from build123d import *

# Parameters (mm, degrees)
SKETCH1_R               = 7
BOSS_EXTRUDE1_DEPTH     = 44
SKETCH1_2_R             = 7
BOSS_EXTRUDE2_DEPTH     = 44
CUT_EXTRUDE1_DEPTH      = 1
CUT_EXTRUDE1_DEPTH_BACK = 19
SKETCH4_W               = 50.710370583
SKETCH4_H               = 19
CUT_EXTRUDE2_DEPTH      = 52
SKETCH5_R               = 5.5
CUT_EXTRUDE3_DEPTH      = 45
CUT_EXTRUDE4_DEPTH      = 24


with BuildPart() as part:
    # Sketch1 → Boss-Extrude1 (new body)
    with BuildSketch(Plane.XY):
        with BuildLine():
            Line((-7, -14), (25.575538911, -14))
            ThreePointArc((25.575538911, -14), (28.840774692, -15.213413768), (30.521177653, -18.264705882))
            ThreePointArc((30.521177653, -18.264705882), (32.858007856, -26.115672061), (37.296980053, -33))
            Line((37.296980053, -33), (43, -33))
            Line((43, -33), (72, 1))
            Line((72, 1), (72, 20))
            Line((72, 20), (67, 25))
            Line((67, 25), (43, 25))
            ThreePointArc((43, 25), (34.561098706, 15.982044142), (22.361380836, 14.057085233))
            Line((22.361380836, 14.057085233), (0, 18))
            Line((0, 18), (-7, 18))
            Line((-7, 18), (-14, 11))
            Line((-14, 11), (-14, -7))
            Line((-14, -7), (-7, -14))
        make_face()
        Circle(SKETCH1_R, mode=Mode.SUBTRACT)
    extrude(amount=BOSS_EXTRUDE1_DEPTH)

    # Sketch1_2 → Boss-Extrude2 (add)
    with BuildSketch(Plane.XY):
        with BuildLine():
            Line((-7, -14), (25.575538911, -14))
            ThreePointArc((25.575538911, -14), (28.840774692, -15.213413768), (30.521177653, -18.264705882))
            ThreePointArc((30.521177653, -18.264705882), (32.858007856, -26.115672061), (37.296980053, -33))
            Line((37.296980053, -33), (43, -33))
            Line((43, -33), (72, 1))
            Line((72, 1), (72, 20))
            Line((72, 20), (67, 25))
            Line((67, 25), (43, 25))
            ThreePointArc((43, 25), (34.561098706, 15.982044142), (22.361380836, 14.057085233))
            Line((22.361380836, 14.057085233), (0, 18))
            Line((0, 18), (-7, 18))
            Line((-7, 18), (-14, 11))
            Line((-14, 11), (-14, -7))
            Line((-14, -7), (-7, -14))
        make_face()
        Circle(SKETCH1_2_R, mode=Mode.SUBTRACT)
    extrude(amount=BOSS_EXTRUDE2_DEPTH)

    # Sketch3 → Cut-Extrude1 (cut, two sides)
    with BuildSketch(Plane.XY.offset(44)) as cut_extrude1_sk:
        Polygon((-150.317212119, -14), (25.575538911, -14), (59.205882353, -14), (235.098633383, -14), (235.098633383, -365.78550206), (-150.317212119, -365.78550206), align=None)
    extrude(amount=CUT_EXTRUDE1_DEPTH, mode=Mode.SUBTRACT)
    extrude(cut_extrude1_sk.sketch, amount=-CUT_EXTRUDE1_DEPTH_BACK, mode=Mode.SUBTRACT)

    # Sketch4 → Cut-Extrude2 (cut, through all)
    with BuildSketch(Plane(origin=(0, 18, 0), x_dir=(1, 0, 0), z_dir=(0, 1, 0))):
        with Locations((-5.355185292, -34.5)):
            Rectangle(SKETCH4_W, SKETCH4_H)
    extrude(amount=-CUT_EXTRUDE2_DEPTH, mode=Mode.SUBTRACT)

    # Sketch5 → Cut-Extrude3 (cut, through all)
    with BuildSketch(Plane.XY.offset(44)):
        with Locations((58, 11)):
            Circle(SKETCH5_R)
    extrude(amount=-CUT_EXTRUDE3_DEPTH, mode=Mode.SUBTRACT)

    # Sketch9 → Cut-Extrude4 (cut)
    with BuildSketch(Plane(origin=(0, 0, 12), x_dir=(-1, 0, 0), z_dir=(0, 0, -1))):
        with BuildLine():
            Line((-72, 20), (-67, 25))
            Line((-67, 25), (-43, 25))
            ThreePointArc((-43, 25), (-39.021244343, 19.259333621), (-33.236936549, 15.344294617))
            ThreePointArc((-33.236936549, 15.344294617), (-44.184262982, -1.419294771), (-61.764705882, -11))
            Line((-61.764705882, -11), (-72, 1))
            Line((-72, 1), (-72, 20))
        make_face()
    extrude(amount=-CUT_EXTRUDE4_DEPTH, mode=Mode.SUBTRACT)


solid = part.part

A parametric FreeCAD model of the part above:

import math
import FreeCAD as App
import Part
import Sketcher
from FreeCAD import Vector
Q = App.Units.Quantity


def add_polygon(sketch, points):
    """Adds a closed chain of lines whose ends are joined by coincident constraints."""
    first, n = sketch.GeometryCount, len(points)
    for a, b in zip(points, points[1:] + points[:1]):
        sketch.addGeometry(Part.LineSegment(App.Vector(*a, 0), App.Vector(*b, 0)), False)
    for i in range(n):
        sketch.addConstraint(Sketcher.Constraint("Coincident", first + i, 2, first + (i + 1) % n, 1))

doc = App.newDocument("Part")
body = doc.addObject("PartDesign::Body", "Body")

sketch1 = body.newObject("Sketcher::SketchObject", "Sketch")
sketch1.AttachmentSupport = (doc.getObject("XY_Plane"), [""])
sketch1.MapMode = "FlatFace"
sketch1.addGeometry(Part.LineSegment(Vector(-7, -14, 0), Vector(25.575539, -14, 0)), False)
sketch1.addGeometry(Part.ArcOfCircle(Part.Circle(Vector(25.575539, -19, 0), Vector(0, 0, 1), 5), math.radians(8.456519), math.radians(90)), False)
sketch1.addGeometry(Part.ArcOfCircle(Part.Circle(Vector(59.205882, -14, 0), Vector(0, 0, 1), 29), math.radians(-171.543481), math.radians(-139.067275)), False)
sketch1.addGeometry(Part.LineSegment(Vector(37.29698, -33, 0), Vector(43, -33, 0)), False)
sketch1.addGeometry(Part.LineSegment(Vector(43, -33, 0), Vector(72, 1, 0)), False)
sketch1.addGeometry(Part.LineSegment(Vector(72, 1, 0), Vector(72, 20, 0)), False)
sketch1.addGeometry(Part.LineSegment(Vector(72, 20, 0), Vector(67, 25, 0)), False)
sketch1.addGeometry(Part.LineSegment(Vector(67, 25, 0), Vector(43, 25, 0)), False)
sketch1.addGeometry(Part.ArcOfCircle(Part.Circle(Vector(25.660696, 32.768433, 0), Vector(0, 0, 1), 19), math.radians(-100), math.radians(-24.133548)), False)
sketch1.addGeometry(Part.LineSegment(Vector(22.361381, 14.057085, 0), Vector(0, 18, 0)), False)
sketch1.addGeometry(Part.LineSegment(Vector(0, 18, 0), Vector(-7, 18, 0)), False)
sketch1.addGeometry(Part.LineSegment(Vector(-7, 18, 0), Vector(-14, 11, 0)), False)
sketch1.addGeometry(Part.LineSegment(Vector(-14, 11, 0), Vector(-14, -7, 0)), False)
sketch1.addGeometry(Part.LineSegment(Vector(-14, -7, 0), Vector(-7, -14, 0)), False)
sketch1.addGeometry(Part.Circle(Vector(0, 0, 0), Vector(0, 0, 1), 7), False)
sketch1.addConstraint(Sketcher.Constraint("Tangent", 0, 2, 1, 2))
sketch1.addConstraint(Sketcher.Constraint("Tangent", 1, 1, 2, 1))
sketch1.addConstraint(Sketcher.Constraint("Coincident", 2, 2, 3, 1))
sketch1.addConstraint(Sketcher.Constraint("Coincident", 3, 2, 4, 1))
sketch1.addConstraint(Sketcher.Constraint("Coincident", 4, 2, 5, 1))
sketch1.addConstraint(Sketcher.Constraint("Coincident", 5, 2, 6, 1))
sketch1.addConstraint(Sketcher.Constraint("Coincident", 6, 2, 7, 1))
sketch1.addConstraint(Sketcher.Constraint("Coincident", 7, 2, 8, 2))
sketch1.addConstraint(Sketcher.Constraint("Tangent", 8, 1, 9, 1))
sketch1.addConstraint(Sketcher.Constraint("Coincident", 9, 2, 10, 1))
sketch1.addConstraint(Sketcher.Constraint("Coincident", 10, 2, 11, 1))
sketch1.addConstraint(Sketcher.Constraint("Coincident", 11, 2, 12, 1))
sketch1.addConstraint(Sketcher.Constraint("Coincident", 12, 2, 13, 1))
sketch1.addConstraint(Sketcher.Constraint("Coincident", 13, 2, 0, 1))
sketch1.addConstraint(Sketcher.Constraint("Horizontal", 0))
sketch1.addConstraint(Sketcher.Constraint("Horizontal", 3))
sketch1.addConstraint(Sketcher.Constraint("Vertical", 5))
sketch1.addConstraint(Sketcher.Constraint("Horizontal", 7))
sketch1.addConstraint(Sketcher.Constraint("Horizontal", 10))
sketch1.addConstraint(Sketcher.Constraint("Vertical", 12))
sketch1.addConstraint(Sketcher.Constraint("Coincident", 14, 3, -1, 1))
sketch1.addConstraint(Sketcher.Constraint("PointOnObject", 9, 2, -2))
sketch1.addConstraint(Sketcher.Constraint("Perpendicular", 6, 11))
sketch1.addConstraint(Sketcher.Constraint("Perpendicular", 11, 13))
sketch1.addConstraint(Sketcher.Constraint("Horizontal", 2, 3, 0, 2))
sketch1.addConstraint(Sketcher.Constraint("Vertical", 3, 2, 7, 2))
sketch1.addConstraint(Sketcher.Constraint("Vertical", 10, 2, 13, 2))
sketch1.addConstraint(Sketcher.Constraint("Equal", 11, 13))
sketch1.addConstraint(Sketcher.Constraint("Diameter", 14, 14.0))
sketch1.addConstraint(Sketcher.Constraint("Radius", 1, 5.0))
sketch1.addConstraint(Sketcher.Constraint("Radius", 2, 29.0))
sketch1.addConstraint(Sketcher.Constraint("Radius", 8, 19.0))
sketch1.addConstraint(Sketcher.Constraint("DistanceX", 7, 2, 7, 1, 24.0))
sketch1.addConstraint(Sketcher.Constraint("DistanceX", 10, 2, 10, 1, 7.0))
sketch1.addConstraint(Sketcher.Constraint("DistanceY", 5, 1, 5, 2, 19.0))
sketch1.addConstraint(Sketcher.Constraint("DistanceY", 12, 2, 12, 1, 18.0))
sketch1.addConstraint(Sketcher.Constraint("Angle", 9, Q("170 deg")))
sketch1.addConstraint(Sketcher.Constraint("DistanceY", 1, 3, -1, 1, 19.0))
sketch1.addConstraint(Sketcher.Constraint("DistanceY", 2, 2, -1, 1, 33.0))
sketch1.addConstraint(Sketcher.Constraint("DistanceX", -1, 1, 3, 2, 43.0))
sketch1.addConstraint(Sketcher.Constraint("DistanceX", -1, 1, 4, 2, 72.0))
sketch1.addConstraint(Sketcher.Constraint("DistanceY", -1, 1, 4, 2, 1.0))
sketch1.addConstraint(Sketcher.Constraint("DistanceY", -1, 1, 9, 2, 18.0))
sketch1.addConstraint(Sketcher.Constraint("DistanceX", 0, 1, 0, 2, 32.575539))
pad1 = body.newObject("PartDesign::Pad", "Pad")
pad1.Profile = sketch1
pad1.Length = 44

sketch2 = body.newObject("Sketcher::SketchObject", "Sketch001")
sketch2.AttachmentSupport = (doc.getObject("XY_Plane"), [""])
sketch2.MapMode = "FlatFace"
sketch2.addGeometry(Part.LineSegment(Vector(-7, -14, 0), Vector(25.575539, -14, 0)), False)
sketch2.addGeometry(Part.ArcOfCircle(Part.Circle(Vector(25.575539, -19, 0), Vector(0, 0, 1), 5), math.radians(8.456519), math.radians(90)), False)
sketch2.addGeometry(Part.ArcOfCircle(Part.Circle(Vector(59.205882, -14, 0), Vector(0, 0, 1), 29), math.radians(-171.543481), math.radians(-139.067275)), False)
sketch2.addGeometry(Part.LineSegment(Vector(37.29698, -33, 0), Vector(43, -33, 0)), False)
sketch2.addGeometry(Part.LineSegment(Vector(43, -33, 0), Vector(72, 1, 0)), False)
sketch2.addGeometry(Part.LineSegment(Vector(72, 1, 0), Vector(72, 20, 0)), False)
sketch2.addGeometry(Part.LineSegment(Vector(72, 20, 0), Vector(67, 25, 0)), False)
sketch2.addGeometry(Part.LineSegment(Vector(67, 25, 0), Vector(43, 25, 0)), False)
sketch2.addGeometry(Part.ArcOfCircle(Part.Circle(Vector(25.660696, 32.768433, 0), Vector(0, 0, 1), 19), math.radians(-100), math.radians(-24.133548)), False)
sketch2.addGeometry(Part.LineSegment(Vector(22.361381, 14.057085, 0), Vector(0, 18, 0)), False)
sketch2.addGeometry(Part.LineSegment(Vector(0, 18, 0), Vector(-7, 18, 0)), False)
sketch2.addGeometry(Part.LineSegment(Vector(-7, 18, 0), Vector(-14, 11, 0)), False)
sketch2.addGeometry(Part.LineSegment(Vector(-14, 11, 0), Vector(-14, -7, 0)), False)
sketch2.addGeometry(Part.LineSegment(Vector(-14, -7, 0), Vector(-7, -14, 0)), False)
sketch2.addGeometry(Part.Circle(Vector(0, 0, 0), Vector(0, 0, 1), 7), False)
sketch2.addConstraint(Sketcher.Constraint("Tangent", 0, 2, 1, 2))
sketch2.addConstraint(Sketcher.Constraint("Tangent", 1, 1, 2, 1))
sketch2.addConstraint(Sketcher.Constraint("Coincident", 2, 2, 3, 1))
sketch2.addConstraint(Sketcher.Constraint("Coincident", 3, 2, 4, 1))
sketch2.addConstraint(Sketcher.Constraint("Coincident", 4, 2, 5, 1))
sketch2.addConstraint(Sketcher.Constraint("Coincident", 5, 2, 6, 1))
sketch2.addConstraint(Sketcher.Constraint("Coincident", 6, 2, 7, 1))
sketch2.addConstraint(Sketcher.Constraint("Coincident", 7, 2, 8, 2))
sketch2.addConstraint(Sketcher.Constraint("Tangent", 8, 1, 9, 1))
sketch2.addConstraint(Sketcher.Constraint("Coincident", 9, 2, 10, 1))
sketch2.addConstraint(Sketcher.Constraint("Coincident", 10, 2, 11, 1))
sketch2.addConstraint(Sketcher.Constraint("Coincident", 11, 2, 12, 1))
sketch2.addConstraint(Sketcher.Constraint("Coincident", 12, 2, 13, 1))
sketch2.addConstraint(Sketcher.Constraint("Coincident", 13, 2, 0, 1))
sketch2.addConstraint(Sketcher.Constraint("Horizontal", 0))
sketch2.addConstraint(Sketcher.Constraint("Horizontal", 3))
sketch2.addConstraint(Sketcher.Constraint("Vertical", 5))
sketch2.addConstraint(Sketcher.Constraint("Horizontal", 7))
sketch2.addConstraint(Sketcher.Constraint("Horizontal", 10))
sketch2.addConstraint(Sketcher.Constraint("Vertical", 12))
sketch2.addConstraint(Sketcher.Constraint("Coincident", 14, 3, -1, 1))
sketch2.addConstraint(Sketcher.Constraint("PointOnObject", 9, 2, -2))
sketch2.addConstraint(Sketcher.Constraint("Perpendicular", 6, 11))
sketch2.addConstraint(Sketcher.Constraint("Perpendicular", 11, 13))
sketch2.addConstraint(Sketcher.Constraint("Horizontal", 2, 3, 0, 2))
sketch2.addConstraint(Sketcher.Constraint("Vertical", 3, 2, 7, 2))
sketch2.addConstraint(Sketcher.Constraint("Vertical", 10, 2, 13, 2))
sketch2.addConstraint(Sketcher.Constraint("Equal", 11, 13))
sketch2.addConstraint(Sketcher.Constraint("Diameter", 14, 14.0))
sketch2.addConstraint(Sketcher.Constraint("Radius", 1, 5.0))
sketch2.addConstraint(Sketcher.Constraint("Radius", 2, 29.0))
sketch2.addConstraint(Sketcher.Constraint("Radius", 8, 19.0))
sketch2.addConstraint(Sketcher.Constraint("DistanceX", 7, 2, 7, 1, 24.0))
sketch2.addConstraint(Sketcher.Constraint("DistanceX", 10, 2, 10, 1, 7.0))
sketch2.addConstraint(Sketcher.Constraint("DistanceY", 5, 1, 5, 2, 19.0))
sketch2.addConstraint(Sketcher.Constraint("DistanceY", 12, 2, 12, 1, 18.0))
sketch2.addConstraint(Sketcher.Constraint("Angle", 9, Q("170 deg")))
sketch2.addConstraint(Sketcher.Constraint("DistanceY", 1, 3, -1, 1, 19.0))
sketch2.addConstraint(Sketcher.Constraint("DistanceY", 2, 2, -1, 1, 33.0))
sketch2.addConstraint(Sketcher.Constraint("DistanceX", -1, 1, 3, 2, 43.0))
sketch2.addConstraint(Sketcher.Constraint("DistanceX", -1, 1, 4, 2, 72.0))
sketch2.addConstraint(Sketcher.Constraint("DistanceY", -1, 1, 4, 2, 1.0))
sketch2.addConstraint(Sketcher.Constraint("DistanceY", -1, 1, 9, 2, 18.0))
sketch2.addConstraint(Sketcher.Constraint("DistanceX", 0, 1, 0, 2, 32.575539))
pad2 = body.newObject("PartDesign::Pad", "Pad001")
pad2.Profile = sketch2
pad2.Length = 44

sketch3 = body.newObject("Sketcher::SketchObject", "Sketch002")
sketch3.AttachmentSupport = (doc.getObject("XY_Plane"), [""])
sketch3.MapMode = "FlatFace"
sketch3.AttachmentOffset = App.Placement(Vector(0, 0, 44), App.Rotation())
add_polygon(sketch3, [(235.098633, -14), (-150.317212, -14), (-150.317212, -365.785502), (235.098633, -365.785502)])
sketch3.addConstraint(Sketcher.Constraint("Horizontal", 0))
sketch3.addConstraint(Sketcher.Constraint("Vertical", 1))
sketch3.addConstraint(Sketcher.Constraint("Horizontal", 2))
sketch3.addConstraint(Sketcher.Constraint("Vertical", 3))
sketch3.addConstraint(Sketcher.Constraint("DistanceY", 0, 2, -1, 1, 14.0))
sketch3.addConstraint(Sketcher.Constraint("DistanceX", 0, 2, 0, 1, 385.415846))
sketch3.addConstraint(Sketcher.Constraint("DistanceY", 1, 2, 1, 1, 351.785502))
sketch3.addConstraint(Sketcher.Constraint("DistanceX", 0, 2, -1, 1, 150.317212))
pocket1 = body.newObject("PartDesign::Pocket", "Pocket")
pocket1.Profile = sketch3
pocket1.Type = "TwoLengths"
pocket1.Length = 1
pocket1.Length2 = 19
pocket1.Reversed = True

sketch4 = body.newObject("Sketcher::SketchObject", "Sketch003")
sketch4.AttachmentSupport = (doc.getObject("XZ_Plane"), [""])
sketch4.MapMode = "FlatFace"
sketch4.AttachmentOffset = App.Placement(Vector(0, 0, -18), App.Rotation())
add_polygon(sketch4, [(-30.710371, 25), (-30.710371, 44), (20, 44), (20, 25)])
sketch4.addConstraint(Sketcher.Constraint("Vertical", 0))
sketch4.addConstraint(Sketcher.Constraint("Horizontal", 1))
sketch4.addConstraint(Sketcher.Constraint("Vertical", 2))
sketch4.addConstraint(Sketcher.Constraint("Horizontal", 3))
sketch4.addConstraint(Sketcher.Constraint("DistanceY", 0, 1, 0, 2, 19.0))
sketch4.addConstraint(Sketcher.Constraint("DistanceY", -1, 1, 0, 2, 44.0))
sketch4.addConstraint(Sketcher.Constraint("DistanceX", -1, 1, 1, 2, 20.0))
sketch4.addConstraint(Sketcher.Constraint("DistanceX", 1, 1, 1, 2, 50.710371))
pocket2 = body.newObject("PartDesign::Pocket", "Pocket001")
pocket2.Profile = sketch4
pocket2.Type = "ThroughAll"
pocket2.Reversed = True

sketch5 = body.newObject("Sketcher::SketchObject", "Sketch004")
sketch5.AttachmentSupport = (doc.getObject("XY_Plane"), [""])
sketch5.MapMode = "FlatFace"
sketch5.AttachmentOffset = App.Placement(Vector(0, 0, 44), App.Rotation())
sketch5.addGeometry(Part.Circle(Vector(58, 11, 0), Vector(0, 0, 1), 5.5), False)
sketch5.addConstraint(Sketcher.Constraint("Diameter", 0, 11.0))
sketch5.addConstraint(Sketcher.Constraint("DistanceX", -1, 1, 0, 3, 58.0))
sketch5.addConstraint(Sketcher.Constraint("DistanceY", -1, 1, 0, 3, 11.0))
pocket3 = body.newObject("PartDesign::Pocket", "Pocket002")
pocket3.Profile = sketch5
pocket3.Type = "ThroughAll"

sketch6 = body.newObject("Sketcher::SketchObject", "Sketch005")
sketch6.AttachmentSupport = (doc.getObject("XY_Plane"), [""])
sketch6.MapMode = "FlatFace"
sketch6.AttachmentOffset = App.Placement(Vector(0, 0, 12), App.Rotation())
sketch6.addGeometry(Part.LineSegment(Vector(67, 25, 0), Vector(72, 20, 0)), False)
sketch6.addGeometry(Part.LineSegment(Vector(72, 20, 0), Vector(72, 1, 0)), False)
sketch6.addGeometry(Part.LineSegment(Vector(72, 1, 0), Vector(61.764706, -11, 0)), False)
sketch6.addGeometry(Part.ArcOfCircle(Part.Circle(Vector(72, 28.701873, 0), Vector(0, 0, 1), 41), math.radians(-160.986277), math.radians(-104.456288)), False)
sketch6.addGeometry(Part.ArcOfCircle(Part.Circle(Vector(25.660696, 32.768433, 0), Vector(0, 0, 1), 19), math.radians(-66.499974), math.radians(-24.133548)), False)
sketch6.addGeometry(Part.LineSegment(Vector(43, 25, 0), Vector(67, 25, 0)), False)
sketch6.addConstraint(Sketcher.Constraint("Coincident", 0, 2, 1, 1))
sketch6.addConstraint(Sketcher.Constraint("Coincident", 1, 2, 2, 1))
sketch6.addConstraint(Sketcher.Constraint("Coincident", 2, 2, 3, 2))
sketch6.addConstraint(Sketcher.Constraint("Coincident", 3, 1, 4, 1))
sketch6.addConstraint(Sketcher.Constraint("Coincident", 4, 2, 5, 1))
sketch6.addConstraint(Sketcher.Constraint("Coincident", 5, 2, 0, 1))
sketch6.addConstraint(Sketcher.Constraint("Vertical", 1))
sketch6.addConstraint(Sketcher.Constraint("Horizontal", 5))
sketch6.addConstraint(Sketcher.Constraint("Vertical", 3, 3, 0, 2))
sketch6.addConstraint(Sketcher.Constraint("Radius", 3, 41.0))
sketch6.addConstraint(Sketcher.Constraint("Radius", 4, 19.0))
sketch6.addConstraint(Sketcher.Constraint("DistanceX", 5, 1, 5, 2, 24.0))
sketch6.addConstraint(Sketcher.Constraint("DistanceY", 1, 2, 1, 1, 19.0))
sketch6.addConstraint(Sketcher.Constraint("Angle", 0, Q("-45 deg")))
sketch6.addConstraint(Sketcher.Constraint("DistanceX", -1, 1, 3, 3, 72.0))
sketch6.addConstraint(Sketcher.Constraint("DistanceY", -1, 1, 0, 2, 20.0))
sketch6.addConstraint(Sketcher.Constraint("DistanceY", 2, 2, -1, 1, 11.0))
sketch6.addConstraint(Sketcher.Constraint("DistanceX", -1, 1, 4, 2, 43.0))
sketch6.addConstraint(Sketcher.Constraint("DistanceY", 3, 3, 4, 3, 4.066559))
sketch6.addConstraint(Sketcher.Constraint("DistanceX", 4, 3, 2, 2, 36.10401))
pocket4 = body.newObject("PartDesign::Pocket", "Pocket003")
pocket4.Profile = sketch6
pocket4.Length = 24
pocket4.Reversed = True

doc.recompute()
